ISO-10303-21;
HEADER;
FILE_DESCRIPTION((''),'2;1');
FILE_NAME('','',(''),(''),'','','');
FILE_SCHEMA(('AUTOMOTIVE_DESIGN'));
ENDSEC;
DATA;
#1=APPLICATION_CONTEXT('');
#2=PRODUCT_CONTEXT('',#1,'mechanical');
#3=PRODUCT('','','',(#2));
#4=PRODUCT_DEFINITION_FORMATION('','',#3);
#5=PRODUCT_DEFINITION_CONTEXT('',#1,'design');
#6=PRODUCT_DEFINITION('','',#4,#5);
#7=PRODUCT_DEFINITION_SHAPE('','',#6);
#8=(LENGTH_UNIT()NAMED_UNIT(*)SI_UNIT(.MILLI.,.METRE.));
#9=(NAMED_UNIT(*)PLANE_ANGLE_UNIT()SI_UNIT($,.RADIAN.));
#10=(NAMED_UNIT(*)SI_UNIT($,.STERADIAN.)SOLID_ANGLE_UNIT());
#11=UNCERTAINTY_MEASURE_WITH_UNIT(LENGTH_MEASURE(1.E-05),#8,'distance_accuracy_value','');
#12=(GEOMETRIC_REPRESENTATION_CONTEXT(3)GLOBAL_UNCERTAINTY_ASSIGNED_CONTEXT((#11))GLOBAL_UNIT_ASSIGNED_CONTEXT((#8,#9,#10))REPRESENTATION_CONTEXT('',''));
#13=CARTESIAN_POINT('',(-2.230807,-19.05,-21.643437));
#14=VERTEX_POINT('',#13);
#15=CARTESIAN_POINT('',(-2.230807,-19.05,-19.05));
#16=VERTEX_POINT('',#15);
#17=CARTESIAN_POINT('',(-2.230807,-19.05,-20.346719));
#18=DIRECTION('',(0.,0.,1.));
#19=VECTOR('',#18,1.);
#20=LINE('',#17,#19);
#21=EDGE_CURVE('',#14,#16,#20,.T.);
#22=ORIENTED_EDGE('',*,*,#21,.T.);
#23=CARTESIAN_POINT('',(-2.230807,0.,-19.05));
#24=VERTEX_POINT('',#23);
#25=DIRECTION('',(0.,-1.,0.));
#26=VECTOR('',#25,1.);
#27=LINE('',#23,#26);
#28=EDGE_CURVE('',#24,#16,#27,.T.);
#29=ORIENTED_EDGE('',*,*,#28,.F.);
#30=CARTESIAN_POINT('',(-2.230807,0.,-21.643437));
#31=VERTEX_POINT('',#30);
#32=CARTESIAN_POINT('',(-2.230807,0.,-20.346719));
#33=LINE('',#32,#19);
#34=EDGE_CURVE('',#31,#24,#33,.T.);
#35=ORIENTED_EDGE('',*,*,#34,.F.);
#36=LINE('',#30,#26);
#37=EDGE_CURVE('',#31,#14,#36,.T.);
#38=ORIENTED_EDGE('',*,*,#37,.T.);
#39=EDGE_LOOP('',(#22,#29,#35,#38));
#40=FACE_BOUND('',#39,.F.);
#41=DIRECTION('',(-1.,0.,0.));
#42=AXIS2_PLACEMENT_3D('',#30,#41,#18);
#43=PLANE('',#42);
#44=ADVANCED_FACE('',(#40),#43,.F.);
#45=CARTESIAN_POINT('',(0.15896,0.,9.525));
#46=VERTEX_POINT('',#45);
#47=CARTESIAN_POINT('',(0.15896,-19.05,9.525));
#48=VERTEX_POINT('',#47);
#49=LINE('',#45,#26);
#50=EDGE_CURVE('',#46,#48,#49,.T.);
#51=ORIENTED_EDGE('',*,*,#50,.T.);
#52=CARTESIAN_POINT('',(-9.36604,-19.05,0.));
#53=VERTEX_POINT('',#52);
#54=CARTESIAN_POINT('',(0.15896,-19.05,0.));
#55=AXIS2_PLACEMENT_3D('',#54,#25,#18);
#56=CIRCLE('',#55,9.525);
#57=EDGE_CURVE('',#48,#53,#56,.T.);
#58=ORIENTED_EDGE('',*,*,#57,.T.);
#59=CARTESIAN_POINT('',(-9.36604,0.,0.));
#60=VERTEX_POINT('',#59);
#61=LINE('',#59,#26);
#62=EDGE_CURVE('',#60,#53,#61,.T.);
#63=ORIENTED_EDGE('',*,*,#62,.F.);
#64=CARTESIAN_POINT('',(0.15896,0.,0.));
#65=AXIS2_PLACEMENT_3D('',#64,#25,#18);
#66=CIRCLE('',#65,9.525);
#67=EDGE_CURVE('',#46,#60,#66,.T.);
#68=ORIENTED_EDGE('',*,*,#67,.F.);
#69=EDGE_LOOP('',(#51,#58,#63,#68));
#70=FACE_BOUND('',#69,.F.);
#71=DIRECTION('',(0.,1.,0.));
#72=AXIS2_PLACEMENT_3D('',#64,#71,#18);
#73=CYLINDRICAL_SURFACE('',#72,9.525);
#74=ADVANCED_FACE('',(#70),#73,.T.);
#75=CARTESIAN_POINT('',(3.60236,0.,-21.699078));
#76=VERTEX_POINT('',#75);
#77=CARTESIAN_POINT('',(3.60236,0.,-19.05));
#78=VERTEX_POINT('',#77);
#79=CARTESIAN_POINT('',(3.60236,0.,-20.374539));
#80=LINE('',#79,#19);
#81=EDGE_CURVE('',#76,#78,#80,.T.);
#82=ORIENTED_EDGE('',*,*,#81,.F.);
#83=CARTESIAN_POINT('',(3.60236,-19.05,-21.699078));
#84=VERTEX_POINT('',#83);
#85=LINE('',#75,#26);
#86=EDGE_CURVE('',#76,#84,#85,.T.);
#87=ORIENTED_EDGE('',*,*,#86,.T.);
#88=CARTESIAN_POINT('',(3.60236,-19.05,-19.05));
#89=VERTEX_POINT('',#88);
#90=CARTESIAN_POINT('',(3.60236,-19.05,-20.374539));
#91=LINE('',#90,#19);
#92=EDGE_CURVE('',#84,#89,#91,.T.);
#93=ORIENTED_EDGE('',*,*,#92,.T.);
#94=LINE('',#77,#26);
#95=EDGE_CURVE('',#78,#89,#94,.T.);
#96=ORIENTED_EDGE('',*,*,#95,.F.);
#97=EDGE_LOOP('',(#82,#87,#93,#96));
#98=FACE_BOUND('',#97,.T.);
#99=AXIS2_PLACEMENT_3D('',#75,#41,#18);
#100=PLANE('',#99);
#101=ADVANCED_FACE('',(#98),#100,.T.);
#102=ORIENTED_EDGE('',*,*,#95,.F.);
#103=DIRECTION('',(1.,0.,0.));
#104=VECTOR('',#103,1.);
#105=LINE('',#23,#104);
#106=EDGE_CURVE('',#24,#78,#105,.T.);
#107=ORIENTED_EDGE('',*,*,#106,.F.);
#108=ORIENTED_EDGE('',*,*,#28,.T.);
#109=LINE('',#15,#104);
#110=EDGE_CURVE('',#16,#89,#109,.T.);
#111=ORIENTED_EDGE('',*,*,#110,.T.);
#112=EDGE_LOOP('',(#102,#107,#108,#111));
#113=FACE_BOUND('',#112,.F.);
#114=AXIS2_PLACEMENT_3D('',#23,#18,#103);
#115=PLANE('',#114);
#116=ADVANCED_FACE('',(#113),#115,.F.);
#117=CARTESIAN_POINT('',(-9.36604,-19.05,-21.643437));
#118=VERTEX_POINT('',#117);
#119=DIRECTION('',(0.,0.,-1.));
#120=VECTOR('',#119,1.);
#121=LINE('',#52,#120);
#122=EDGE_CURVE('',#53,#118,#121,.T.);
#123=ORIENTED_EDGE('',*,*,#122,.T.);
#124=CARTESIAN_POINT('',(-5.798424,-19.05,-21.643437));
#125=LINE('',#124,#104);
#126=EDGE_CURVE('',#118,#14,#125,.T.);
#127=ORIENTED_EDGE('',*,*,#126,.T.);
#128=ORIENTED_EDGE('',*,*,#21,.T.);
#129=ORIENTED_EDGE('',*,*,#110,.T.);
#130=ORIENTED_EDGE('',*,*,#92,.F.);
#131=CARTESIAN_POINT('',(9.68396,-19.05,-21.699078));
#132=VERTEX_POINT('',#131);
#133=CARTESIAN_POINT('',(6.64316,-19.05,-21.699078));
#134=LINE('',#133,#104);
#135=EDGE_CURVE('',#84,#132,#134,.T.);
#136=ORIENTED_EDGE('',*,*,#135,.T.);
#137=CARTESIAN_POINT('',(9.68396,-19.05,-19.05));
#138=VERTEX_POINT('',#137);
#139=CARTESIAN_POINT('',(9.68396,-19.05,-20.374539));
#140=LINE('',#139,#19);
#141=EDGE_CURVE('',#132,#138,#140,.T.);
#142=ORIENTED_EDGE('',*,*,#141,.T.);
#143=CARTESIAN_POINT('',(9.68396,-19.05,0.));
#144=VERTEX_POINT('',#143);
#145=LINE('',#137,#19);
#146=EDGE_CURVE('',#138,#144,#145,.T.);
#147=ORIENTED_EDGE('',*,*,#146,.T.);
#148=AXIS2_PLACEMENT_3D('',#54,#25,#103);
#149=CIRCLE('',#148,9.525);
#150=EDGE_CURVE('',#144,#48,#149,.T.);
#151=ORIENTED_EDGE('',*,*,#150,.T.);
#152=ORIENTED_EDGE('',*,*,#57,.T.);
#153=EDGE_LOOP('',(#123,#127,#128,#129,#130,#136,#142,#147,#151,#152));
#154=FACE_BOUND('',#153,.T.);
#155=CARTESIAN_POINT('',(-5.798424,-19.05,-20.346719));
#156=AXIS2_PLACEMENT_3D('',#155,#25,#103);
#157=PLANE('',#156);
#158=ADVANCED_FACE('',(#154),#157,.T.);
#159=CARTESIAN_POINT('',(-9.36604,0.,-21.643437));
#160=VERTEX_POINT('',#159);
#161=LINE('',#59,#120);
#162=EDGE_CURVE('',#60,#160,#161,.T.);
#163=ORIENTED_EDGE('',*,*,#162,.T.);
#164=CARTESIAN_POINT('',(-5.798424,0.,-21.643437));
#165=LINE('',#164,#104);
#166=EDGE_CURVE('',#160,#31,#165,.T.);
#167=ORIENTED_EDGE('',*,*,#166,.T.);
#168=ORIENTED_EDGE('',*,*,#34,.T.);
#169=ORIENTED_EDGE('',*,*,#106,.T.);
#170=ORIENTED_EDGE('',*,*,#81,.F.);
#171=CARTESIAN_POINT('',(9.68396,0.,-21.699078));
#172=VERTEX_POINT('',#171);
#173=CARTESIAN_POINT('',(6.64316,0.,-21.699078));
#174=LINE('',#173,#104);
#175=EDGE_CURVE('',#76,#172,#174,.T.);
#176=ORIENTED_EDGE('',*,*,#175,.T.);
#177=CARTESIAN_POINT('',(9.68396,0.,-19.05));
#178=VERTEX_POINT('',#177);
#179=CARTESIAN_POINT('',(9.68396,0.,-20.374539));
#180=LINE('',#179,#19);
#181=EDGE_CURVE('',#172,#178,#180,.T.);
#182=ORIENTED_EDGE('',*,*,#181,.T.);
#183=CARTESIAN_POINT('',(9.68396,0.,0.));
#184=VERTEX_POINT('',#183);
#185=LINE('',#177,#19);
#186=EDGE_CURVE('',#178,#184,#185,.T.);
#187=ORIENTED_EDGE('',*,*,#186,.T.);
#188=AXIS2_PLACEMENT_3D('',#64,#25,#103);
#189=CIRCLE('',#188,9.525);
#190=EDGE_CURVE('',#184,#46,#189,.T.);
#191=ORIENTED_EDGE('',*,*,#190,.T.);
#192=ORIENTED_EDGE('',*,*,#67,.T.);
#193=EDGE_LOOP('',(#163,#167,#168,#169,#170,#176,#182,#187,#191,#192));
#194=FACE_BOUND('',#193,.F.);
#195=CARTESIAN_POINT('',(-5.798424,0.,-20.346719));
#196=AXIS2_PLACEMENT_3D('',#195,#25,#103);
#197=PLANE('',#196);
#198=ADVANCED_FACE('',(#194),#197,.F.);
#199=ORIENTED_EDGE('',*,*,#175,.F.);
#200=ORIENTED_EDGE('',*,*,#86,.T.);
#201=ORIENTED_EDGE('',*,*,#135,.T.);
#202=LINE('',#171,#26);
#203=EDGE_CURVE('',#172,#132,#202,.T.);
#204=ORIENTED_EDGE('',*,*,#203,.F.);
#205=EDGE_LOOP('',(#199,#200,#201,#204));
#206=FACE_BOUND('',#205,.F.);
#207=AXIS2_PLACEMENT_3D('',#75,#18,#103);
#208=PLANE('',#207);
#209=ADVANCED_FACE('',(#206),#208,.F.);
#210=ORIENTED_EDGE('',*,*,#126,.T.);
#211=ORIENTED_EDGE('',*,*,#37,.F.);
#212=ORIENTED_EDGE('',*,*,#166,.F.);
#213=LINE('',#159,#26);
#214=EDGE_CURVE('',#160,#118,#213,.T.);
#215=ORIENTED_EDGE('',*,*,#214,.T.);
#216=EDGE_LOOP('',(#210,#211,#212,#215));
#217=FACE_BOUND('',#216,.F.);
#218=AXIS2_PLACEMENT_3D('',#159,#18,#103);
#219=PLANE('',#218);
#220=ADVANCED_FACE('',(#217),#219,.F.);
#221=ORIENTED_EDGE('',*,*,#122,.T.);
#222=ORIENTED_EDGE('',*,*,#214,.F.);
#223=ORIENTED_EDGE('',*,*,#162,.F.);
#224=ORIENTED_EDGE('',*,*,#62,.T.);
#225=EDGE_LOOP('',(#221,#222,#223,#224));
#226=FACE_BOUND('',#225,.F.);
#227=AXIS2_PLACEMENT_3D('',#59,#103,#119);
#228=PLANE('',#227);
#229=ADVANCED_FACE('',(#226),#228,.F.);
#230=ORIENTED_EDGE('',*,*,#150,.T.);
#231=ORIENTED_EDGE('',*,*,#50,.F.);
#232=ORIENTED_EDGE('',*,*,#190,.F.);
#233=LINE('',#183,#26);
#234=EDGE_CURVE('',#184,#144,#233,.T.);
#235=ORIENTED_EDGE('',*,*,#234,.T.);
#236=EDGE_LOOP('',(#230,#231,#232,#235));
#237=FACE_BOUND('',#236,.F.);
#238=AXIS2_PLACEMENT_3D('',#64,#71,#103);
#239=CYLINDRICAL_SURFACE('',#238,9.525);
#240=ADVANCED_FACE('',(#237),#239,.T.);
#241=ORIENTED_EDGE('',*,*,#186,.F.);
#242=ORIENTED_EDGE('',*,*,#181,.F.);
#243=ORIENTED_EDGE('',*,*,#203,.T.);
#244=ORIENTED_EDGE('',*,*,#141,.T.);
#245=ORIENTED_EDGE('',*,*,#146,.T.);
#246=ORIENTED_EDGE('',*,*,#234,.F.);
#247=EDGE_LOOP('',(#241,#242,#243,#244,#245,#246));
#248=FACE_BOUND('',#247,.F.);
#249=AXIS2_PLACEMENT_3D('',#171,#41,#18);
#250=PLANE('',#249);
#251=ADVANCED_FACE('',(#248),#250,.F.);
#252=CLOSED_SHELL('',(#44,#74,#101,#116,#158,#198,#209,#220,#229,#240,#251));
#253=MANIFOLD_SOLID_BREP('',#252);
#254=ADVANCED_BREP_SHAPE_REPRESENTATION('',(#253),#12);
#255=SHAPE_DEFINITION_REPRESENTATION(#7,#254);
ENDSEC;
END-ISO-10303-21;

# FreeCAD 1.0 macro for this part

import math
import FreeCAD as App
import Part
import Sketcher
Q = App.Units.Quantity

doc = App.newDocument("Part")
body = doc.addObject("PartDesign::Body", "Body")

# Sketch on XZ plane
sketch1 = body.newObject("Sketcher::SketchObject", "Sketch")
sketch1.AttachmentSupport = (doc.getObject("XZ_Plane"), [""])
sketch1.MapMode = "FlatFace"
sketch1.addGeometry(Part.LineSegment(App.Vector(-9.4, -21.6, 0), App.Vector(-2.2, -21.6, 0)), False)
sketch1.addGeometry(Part.LineSegment(App.Vector(-2.2, -21.6, 0), App.Vector(-2.2, -19.1, 0)), False)
sketch1.addGeometry(Part.LineSegment(App.Vector(-2.2, -19.1, 0), App.Vector(3.6, -19.1, 0)), False)
sketch1.addGeometry(Part.LineSegment(App.Vector(3.6, -19.1, 0), App.Vector(3.6, -21.7, 0)), False)
sketch1.addGeometry(Part.LineSegment(App.Vector(3.6, -21.7, 0), App.Vector(9.7, -21.7, 0)), False)
sketch1.addGeometry(Part.LineSegment(App.Vector(9.7, -21.7, 0), App.Vector(9.7, -19.1, 0)), False)
sketch1.addGeometry(Part.LineSegment(App.Vector(9.7, -19.1, 0), App.Vector(9.7, 0, 0)), False)
sketch1.addGeometry(Part.ArcOfCircle(Part.Circle(App.Vector(0.2, 0, 0), App.Vector(0, 0, 1), 9.5), math.radians(0), math.radians(90)), False)
sketch1.addGeometry(Part.ArcOfCircle(Part.Circle(App.Vector(0.2, 0, 0), App.Vector(0, 0, 1), 9.5), math.radians(90), math.radians(180)), False)
sketch1.addGeometry(Part.LineSegment(App.Vector(-9.4, 0, 0), App.Vector(-9.4, -21.6, 0)), False)
sketch1.addConstraint(Sketcher.Constraint("Coincident", 0, 2, 1, 1))
sketch1.addConstraint(Sketcher.Constraint("Coincident", 1, 2, 2, 1))
sketch1.addConstraint(Sketcher.Constraint("Coincident", 2, 2, 3, 1))
sketch1.addConstraint(Sketcher.Constraint("Coincident", 3, 2, 4, 1))
sketch1.addConstraint(Sketcher.Constraint("Coincident", 4, 2, 5, 1))
sketch1.addConstraint(Sketcher.Constraint("Coincident", 5, 2, 6, 1))
sketch1.addConstraint(Sketcher.Constraint("Tangent", 6, 2, 7, 1))
sketch1.addConstraint(Sketcher.Constraint("Tangent", 7, 2, 8, 1))
sketch1.addConstraint(Sketcher.Constraint("Tangent", 8, 2, 9, 1))
sketch1.addConstraint(Sketcher.Constraint("Coincident", 9, 2, 0, 1))
sketch1.addConstraint(Sketcher.Constraint("Horizontal", 0))
sketch1.addConstraint(Sketcher.Constraint("Vertical", 1))
sketch1.addConstraint(Sketcher.Constraint("Horizontal", 2))
sketch1.addConstraint(Sketcher.Constraint("Vertical", 3))
sketch1.addConstraint(Sketcher.Constraint("Horizontal", 4))
sketch1.addConstraint(Sketcher.Constraint("Vertical", 5))
sketch1.addConstraint(Sketcher.Constraint("Vertical", 6))
sketch1.addConstraint(Sketcher.Constraint("Vertical", 9))
sketch1.addConstraint(Sketcher.Constraint("Equal", 7, 8))
sketch1.addConstraint(Sketcher.Constraint("PointOnObject", 7, 3, -1))
sketch1.addConstraint(Sketcher.Constraint("Horizontal", 2, 2, 5, 2))
sketch1.addConstraint(Sketcher.Constraint("Vertical", 8, 3, 7, 2))
sketch1.addConstraint(Sketcher.Constraint("Radius", 7, Q("0.375 in")))
sketch1.addConstraint(Sketcher.Constraint("DistanceY", 6, 1, 6, 2, Q("0.75 in")))
sketch1.addConstraint(Sketcher.Constraint("DistanceX", 4, 1, 4, 2, 6.0816))
sketch1.addConstraint(Sketcher.Constraint("DistanceY", 3, 2, 3, 1, 2.649078))
sketch1.addConstraint(Sketcher.Constraint("DistanceX", 0, 1, 0, 2, 7.135233))
sketch1.addConstraint(Sketcher.Constraint("DistanceY", 1, 1, 1, 2, 2.593437))
sketch1.addConstraint(Sketcher.Constraint("DistanceX", -1, 1, 7, 3, 0.15896))
pad1 = body.newObject("PartDesign::Pad", "Pad")
pad1.Profile = sketch1
pad1.Length = Q("0.75 in")

doc.recompute()
